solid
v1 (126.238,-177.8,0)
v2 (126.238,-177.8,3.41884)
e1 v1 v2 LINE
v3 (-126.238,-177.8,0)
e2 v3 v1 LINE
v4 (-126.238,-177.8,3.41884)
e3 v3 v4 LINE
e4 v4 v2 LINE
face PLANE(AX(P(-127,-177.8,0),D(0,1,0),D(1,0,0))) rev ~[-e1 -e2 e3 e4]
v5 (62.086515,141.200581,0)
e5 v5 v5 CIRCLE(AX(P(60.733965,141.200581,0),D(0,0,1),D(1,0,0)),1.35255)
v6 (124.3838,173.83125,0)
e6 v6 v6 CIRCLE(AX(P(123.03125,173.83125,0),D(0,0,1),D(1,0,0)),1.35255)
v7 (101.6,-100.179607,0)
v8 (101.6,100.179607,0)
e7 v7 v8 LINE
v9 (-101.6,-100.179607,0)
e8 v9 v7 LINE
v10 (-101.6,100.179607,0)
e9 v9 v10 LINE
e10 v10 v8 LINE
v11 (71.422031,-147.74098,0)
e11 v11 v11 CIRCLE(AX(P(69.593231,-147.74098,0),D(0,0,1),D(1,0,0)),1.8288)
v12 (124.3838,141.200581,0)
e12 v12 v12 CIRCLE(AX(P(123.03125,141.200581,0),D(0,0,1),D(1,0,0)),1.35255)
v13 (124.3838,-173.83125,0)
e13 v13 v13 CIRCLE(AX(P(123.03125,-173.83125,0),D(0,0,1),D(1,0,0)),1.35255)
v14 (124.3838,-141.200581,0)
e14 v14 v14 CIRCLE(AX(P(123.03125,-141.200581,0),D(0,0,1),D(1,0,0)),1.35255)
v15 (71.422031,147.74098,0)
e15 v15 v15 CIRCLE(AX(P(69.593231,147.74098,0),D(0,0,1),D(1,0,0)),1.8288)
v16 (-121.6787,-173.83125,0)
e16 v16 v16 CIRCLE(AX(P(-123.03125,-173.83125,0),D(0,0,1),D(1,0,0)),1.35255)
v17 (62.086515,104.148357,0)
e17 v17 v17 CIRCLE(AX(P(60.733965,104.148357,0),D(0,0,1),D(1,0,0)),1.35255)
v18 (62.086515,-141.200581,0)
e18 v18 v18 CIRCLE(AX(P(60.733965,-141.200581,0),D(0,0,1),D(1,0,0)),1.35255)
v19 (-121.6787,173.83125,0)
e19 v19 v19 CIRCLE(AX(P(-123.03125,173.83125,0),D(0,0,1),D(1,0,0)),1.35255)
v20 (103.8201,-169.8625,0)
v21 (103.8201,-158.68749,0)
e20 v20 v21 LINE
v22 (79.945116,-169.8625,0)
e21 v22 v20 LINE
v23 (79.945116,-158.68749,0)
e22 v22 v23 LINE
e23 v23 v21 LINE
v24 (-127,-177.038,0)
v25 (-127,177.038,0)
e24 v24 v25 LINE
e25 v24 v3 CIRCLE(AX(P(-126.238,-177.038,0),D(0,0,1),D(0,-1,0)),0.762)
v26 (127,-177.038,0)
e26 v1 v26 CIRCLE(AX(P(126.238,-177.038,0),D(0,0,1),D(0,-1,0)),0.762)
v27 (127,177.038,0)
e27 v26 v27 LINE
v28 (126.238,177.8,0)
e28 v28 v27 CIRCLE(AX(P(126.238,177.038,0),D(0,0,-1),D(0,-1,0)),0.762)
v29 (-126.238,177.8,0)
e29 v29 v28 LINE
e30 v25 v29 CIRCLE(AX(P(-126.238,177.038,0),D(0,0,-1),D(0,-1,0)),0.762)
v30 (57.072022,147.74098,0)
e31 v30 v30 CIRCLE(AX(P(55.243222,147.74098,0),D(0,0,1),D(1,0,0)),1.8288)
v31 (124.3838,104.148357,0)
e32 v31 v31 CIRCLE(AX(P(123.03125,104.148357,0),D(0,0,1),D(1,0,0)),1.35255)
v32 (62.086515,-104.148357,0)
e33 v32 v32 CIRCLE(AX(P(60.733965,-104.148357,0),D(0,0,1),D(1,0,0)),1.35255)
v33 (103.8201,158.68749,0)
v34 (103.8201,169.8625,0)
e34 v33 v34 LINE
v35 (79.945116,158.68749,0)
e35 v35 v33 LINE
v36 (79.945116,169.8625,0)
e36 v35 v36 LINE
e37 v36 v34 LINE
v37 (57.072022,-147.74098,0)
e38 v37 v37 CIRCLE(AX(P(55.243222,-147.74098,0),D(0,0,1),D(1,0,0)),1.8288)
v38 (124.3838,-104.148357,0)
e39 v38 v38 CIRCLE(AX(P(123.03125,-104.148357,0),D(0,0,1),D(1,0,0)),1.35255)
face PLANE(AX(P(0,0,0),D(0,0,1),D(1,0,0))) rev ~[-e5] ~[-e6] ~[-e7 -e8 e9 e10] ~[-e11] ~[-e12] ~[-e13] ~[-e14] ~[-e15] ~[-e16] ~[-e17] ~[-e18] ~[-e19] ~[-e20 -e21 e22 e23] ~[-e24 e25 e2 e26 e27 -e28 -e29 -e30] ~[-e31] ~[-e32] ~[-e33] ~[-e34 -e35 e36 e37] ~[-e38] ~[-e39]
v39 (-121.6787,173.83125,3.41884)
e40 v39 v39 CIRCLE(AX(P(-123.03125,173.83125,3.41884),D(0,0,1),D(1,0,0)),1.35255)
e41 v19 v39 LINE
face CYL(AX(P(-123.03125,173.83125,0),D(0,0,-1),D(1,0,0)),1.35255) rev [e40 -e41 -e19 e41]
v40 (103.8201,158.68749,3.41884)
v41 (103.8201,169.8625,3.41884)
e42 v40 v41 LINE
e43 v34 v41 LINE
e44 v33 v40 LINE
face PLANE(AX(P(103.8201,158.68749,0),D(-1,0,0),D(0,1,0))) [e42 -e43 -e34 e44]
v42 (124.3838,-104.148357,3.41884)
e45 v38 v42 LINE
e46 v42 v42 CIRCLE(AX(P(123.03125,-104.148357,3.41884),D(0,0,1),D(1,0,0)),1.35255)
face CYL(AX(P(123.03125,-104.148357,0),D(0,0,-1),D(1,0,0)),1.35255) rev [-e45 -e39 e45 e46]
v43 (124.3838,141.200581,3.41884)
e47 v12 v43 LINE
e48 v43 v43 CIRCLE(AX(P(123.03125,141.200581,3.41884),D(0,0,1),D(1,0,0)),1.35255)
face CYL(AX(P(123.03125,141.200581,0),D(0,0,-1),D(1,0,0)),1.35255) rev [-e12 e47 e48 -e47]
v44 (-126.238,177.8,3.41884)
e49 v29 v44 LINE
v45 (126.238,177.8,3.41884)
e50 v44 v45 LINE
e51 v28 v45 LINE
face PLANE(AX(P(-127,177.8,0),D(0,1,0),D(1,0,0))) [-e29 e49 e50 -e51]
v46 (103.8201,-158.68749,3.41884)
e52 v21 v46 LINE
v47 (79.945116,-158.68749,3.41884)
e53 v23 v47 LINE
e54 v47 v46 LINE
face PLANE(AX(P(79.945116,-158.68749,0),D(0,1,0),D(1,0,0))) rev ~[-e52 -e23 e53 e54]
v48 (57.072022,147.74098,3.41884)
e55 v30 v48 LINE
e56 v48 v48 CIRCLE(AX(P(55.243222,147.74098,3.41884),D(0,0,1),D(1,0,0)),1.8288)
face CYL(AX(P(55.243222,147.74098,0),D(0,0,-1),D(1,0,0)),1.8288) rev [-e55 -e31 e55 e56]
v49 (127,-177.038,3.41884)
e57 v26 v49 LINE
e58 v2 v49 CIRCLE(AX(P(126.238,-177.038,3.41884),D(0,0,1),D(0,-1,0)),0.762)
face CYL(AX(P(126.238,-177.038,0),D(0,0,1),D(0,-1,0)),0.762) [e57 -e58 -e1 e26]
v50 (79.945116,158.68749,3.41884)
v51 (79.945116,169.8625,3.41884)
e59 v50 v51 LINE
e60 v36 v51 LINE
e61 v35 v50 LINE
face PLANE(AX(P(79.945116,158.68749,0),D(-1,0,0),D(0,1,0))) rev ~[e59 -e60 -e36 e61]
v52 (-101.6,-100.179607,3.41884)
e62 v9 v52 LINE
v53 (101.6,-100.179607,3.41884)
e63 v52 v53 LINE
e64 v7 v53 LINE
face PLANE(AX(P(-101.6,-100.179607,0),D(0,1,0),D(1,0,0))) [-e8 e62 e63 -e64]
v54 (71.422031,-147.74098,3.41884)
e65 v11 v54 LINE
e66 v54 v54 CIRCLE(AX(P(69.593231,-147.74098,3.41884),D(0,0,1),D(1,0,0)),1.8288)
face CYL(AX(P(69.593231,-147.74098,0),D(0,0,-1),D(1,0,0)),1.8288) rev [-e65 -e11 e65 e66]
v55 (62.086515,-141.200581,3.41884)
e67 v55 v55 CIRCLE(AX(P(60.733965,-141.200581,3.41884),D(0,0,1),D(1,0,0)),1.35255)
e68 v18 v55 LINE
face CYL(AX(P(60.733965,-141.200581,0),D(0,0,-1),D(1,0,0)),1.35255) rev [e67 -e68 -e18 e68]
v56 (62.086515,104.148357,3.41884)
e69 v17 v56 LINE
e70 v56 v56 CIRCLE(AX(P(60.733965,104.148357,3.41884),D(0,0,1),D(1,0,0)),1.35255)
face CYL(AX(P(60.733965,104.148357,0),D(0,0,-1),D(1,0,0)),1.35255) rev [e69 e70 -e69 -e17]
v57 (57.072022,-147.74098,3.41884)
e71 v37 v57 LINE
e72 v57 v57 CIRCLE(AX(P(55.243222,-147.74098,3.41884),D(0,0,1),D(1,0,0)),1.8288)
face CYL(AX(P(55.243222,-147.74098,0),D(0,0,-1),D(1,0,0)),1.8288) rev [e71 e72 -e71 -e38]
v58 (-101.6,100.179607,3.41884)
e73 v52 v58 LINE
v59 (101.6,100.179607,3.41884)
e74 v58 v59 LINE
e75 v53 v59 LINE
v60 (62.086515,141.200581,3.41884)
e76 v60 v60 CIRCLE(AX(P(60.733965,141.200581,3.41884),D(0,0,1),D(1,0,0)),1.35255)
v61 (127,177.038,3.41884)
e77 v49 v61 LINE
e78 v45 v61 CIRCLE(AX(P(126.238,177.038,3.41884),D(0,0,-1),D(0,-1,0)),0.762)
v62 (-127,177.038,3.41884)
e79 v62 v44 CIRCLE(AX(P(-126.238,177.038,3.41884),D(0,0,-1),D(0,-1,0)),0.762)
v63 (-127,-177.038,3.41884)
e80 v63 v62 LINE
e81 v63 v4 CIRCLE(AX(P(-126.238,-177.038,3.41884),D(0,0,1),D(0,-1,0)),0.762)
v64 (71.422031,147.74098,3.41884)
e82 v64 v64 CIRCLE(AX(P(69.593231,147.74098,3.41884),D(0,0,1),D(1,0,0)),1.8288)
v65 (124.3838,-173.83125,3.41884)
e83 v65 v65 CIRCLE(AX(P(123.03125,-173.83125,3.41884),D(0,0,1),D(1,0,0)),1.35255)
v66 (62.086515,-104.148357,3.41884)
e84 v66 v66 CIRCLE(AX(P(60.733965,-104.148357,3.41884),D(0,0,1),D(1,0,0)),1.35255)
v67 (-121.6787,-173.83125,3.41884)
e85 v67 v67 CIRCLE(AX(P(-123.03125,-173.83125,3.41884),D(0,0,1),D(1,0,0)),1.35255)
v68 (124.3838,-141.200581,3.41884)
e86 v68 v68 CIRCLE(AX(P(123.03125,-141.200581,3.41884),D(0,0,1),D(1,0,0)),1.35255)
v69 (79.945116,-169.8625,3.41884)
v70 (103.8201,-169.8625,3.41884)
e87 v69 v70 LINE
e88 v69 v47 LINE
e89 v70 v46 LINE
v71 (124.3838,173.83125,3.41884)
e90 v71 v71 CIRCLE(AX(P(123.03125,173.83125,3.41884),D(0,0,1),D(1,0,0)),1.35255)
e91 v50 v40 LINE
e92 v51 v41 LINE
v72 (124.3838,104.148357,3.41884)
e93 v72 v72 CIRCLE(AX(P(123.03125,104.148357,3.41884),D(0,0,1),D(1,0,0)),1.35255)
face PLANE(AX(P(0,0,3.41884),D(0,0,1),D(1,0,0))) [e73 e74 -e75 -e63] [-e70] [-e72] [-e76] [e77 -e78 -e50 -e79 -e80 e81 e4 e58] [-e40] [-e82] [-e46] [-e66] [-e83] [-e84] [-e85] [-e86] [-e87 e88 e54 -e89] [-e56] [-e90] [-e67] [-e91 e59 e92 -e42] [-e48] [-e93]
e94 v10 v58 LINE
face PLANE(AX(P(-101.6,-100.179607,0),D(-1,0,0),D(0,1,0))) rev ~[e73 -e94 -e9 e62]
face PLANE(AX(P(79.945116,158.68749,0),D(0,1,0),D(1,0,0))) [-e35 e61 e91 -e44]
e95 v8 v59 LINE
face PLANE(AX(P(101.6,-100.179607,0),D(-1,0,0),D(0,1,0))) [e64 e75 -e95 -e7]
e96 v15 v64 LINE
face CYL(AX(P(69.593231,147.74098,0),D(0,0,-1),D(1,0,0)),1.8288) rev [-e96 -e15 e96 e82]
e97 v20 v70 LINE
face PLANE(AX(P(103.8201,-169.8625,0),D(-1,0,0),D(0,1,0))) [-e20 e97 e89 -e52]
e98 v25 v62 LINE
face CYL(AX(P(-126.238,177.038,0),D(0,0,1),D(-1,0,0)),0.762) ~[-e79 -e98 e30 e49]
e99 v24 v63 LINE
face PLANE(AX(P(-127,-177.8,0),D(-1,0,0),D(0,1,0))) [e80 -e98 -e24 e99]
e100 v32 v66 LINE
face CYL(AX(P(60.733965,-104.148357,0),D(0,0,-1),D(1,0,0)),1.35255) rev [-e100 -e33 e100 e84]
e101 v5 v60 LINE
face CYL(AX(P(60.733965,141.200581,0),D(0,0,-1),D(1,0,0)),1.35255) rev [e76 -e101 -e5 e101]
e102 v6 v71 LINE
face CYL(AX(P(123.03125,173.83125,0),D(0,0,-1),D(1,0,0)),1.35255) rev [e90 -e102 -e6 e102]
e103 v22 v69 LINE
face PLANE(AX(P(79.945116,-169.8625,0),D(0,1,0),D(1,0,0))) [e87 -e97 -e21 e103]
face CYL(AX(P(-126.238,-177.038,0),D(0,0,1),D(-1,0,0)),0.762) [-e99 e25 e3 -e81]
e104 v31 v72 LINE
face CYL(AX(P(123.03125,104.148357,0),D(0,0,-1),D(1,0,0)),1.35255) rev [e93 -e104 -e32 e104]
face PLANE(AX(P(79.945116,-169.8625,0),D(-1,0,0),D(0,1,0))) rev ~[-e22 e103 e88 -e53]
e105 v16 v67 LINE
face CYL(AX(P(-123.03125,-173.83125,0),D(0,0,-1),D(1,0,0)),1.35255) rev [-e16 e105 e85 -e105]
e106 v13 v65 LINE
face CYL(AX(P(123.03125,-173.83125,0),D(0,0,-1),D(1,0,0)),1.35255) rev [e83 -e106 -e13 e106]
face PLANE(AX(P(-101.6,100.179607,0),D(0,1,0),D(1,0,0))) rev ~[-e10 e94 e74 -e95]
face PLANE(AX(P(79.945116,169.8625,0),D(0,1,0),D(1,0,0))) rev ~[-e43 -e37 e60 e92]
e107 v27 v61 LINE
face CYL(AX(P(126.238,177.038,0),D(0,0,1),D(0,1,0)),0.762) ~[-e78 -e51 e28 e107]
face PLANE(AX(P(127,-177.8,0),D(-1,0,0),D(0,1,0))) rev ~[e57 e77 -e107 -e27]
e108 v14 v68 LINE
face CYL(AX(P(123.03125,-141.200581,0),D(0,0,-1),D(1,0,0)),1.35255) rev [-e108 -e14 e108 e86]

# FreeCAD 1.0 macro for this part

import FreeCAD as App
import Part
import Sketcher
Q = App.Units.Quantity


def edges_at(feature, points):
    """Names of the edges that pass closest to the given points."""
    edges = feature.Shape.Edges
    near = lambda p: min(range(len(edges)), key=lambda i: edges[i].distToShape(Part.Vertex(*p))[0])
    return sorted({f"Edge{near(p) + 1}" for p in points})

doc = App.newDocument("Part")
params = doc.addObject("Spreadsheet::Sheet", "Params")
for row, (alias, value) in enumerate([
    ("sketch1_width", "10 in"),
    ("sketch1_width2", "8 in"),
    ("sketch1_height", "14 in"),
    ("sketch1_diameter", "0.144 in"),
    ("pad1_length", "0.1346 in"),
    ("fillet_radius", "0.03 in"),
], start=1):
    params.set(f"A{row}", alias)
    params.set(f"B{row}", "=" + value)
    params.setAlias(f"B{row}", alias)

body = doc.addObject("PartDesign::Body", "Body")

# Sketch on XY plane
sketch1 = body.newObject("Sketcher::SketchObject", "Sketch")
sketch1.AttachmentSupport = (doc.getObject("XY_Plane"), [""])
sketch1.MapMode = "FlatFace"
sketch1.addGeometry([
    Part.LineSegment(App.Vector(-127, 177.8, 0), App.Vector(-127, -177.8, 0)),  # 0
    Part.LineSegment(App.Vector(-127, -177.8, 0), App.Vector(127, -177.8, 0)),  # 1
    Part.LineSegment(App.Vector(127, -177.8, 0), App.Vector(127, 177.8, 0)),  # 2
    Part.LineSegment(App.Vector(127, 177.8, 0), App.Vector(-127, 177.8, 0)),  # 3
    Part.Circle(App.Vector(-123.03125, -173.83125, 0), App.Vector(0, 0, 1), 1.35255),  # 4
    Part.Circle(App.Vector(55.243222, -147.74098, 0), App.Vector(0, 0, 1), 1.8288),  # 5
    Part.Circle(App.Vector(60.733965, -141.200581, 0), App.Vector(0, 0, 1), 1.35255),  # 6
    Part.Circle(App.Vector(60.733965, -104.148357, 0), App.Vector(0, 0, 1), 1.35255),  # 7
    Part.LineSegment(App.Vector(103.8201, -169.8625, 0), App.Vector(79.945116, -169.8625, 0)),  # 8
    Part.LineSegment(App.Vector(79.945116, -169.8625, 0), App.Vector(79.945116, -158.68749, 0)),  # 9
    Part.LineSegment(App.Vector(79.945116, -158.68749, 0), App.Vector(103.8201, -158.68749, 0)),  # 10
    Part.LineSegment(App.Vector(103.8201, -158.68749, 0), App.Vector(103.8201, -169.8625, 0)),  # 11
    Part.Circle(App.Vector(69.593231, -147.74098, 0), App.Vector(0, 0, 1), 1.8288),  # 12
    Part.Circle(App.Vector(123.03125, -173.83125, 0), App.Vector(0, 0, 1), 1.35255),  # 13
    Part.Circle(App.Vector(123.03125, -141.200581, 0), App.Vector(0, 0, 1), 1.35255),  # 14
    Part.Circle(App.Vector(123.03125, -104.148357, 0), App.Vector(0, 0, 1), 1.35255),  # 15
    Part.Circle(App.Vector(-123.03125, 173.83125, 0), App.Vector(0, 0, 1), 1.35255),  # 16
    Part.LineSegment(App.Vector(101.6, -100.179607, 0), App.Vector(-101.6, -100.179607, 0)),  # 17
    Part.LineSegment(App.Vector(-101.6, -100.179607, 0), App.Vector(-101.6, 100.179607, 0)),  # 18
    Part.LineSegment(App.Vector(-101.6, 100.179607, 0), App.Vector(101.6, 100.179607, 0)),  # 19
    Part.LineSegment(App.Vector(101.6, 100.179607, 0), App.Vector(101.6, -100.179607, 0)),  # 20
    Part.Circle(App.Vector(60.733965, 104.148357, 0), App.Vector(0, 0, 1), 1.35255),  # 21
    Part.Circle(App.Vector(60.733965, 141.200581, 0), App.Vector(0, 0, 1), 1.35255),  # 22
    Part.Circle(App.Vector(55.243222, 147.74098, 0), App.Vector(0, 0, 1), 1.8288),  # 23
    Part.Circle(App.Vector(123.03125, 104.148357, 0), App.Vector(0, 0, 1), 1.35255),  # 24
    Part.Circle(App.Vector(69.593231, 147.74098, 0), App.Vector(0, 0, 1), 1.8288),  # 25
    Part.LineSegment(App.Vector(103.8201, 158.68749, 0), App.Vector(79.945116, 158.68749, 0)),  # 26
    Part.LineSegment(App.Vector(79.945116, 158.68749, 0), App.Vector(79.945116, 169.8625, 0)),  # 27
    Part.LineSegment(App.Vector(79.945116, 169.8625, 0), App.Vector(103.8201, 169.8625, 0)),  # 28
    Part.LineSegment(App.Vector(103.8201, 169.8625, 0), App.Vector(103.8201, 158.68749, 0)),  # 29
    Part.Circle(App.Vector(123.03125, 141.200581, 0), App.Vector(0, 0, 1), 1.35255),  # 30
    Part.Circle(App.Vector(123.03125, 173.83125, 0), App.Vector(0, 0, 1), 1.35255),  # 31
], False)
sketch1.addConstraint([
    Sketcher.Constraint("Coincident", 0, 2, 1, 1),
    Sketcher.Constraint("Coincident", 1, 2, 2, 1),
    Sketcher.Constraint("Coincident", 2, 2, 3, 1),
    Sketcher.Constraint("Coincident", 3, 2, 0, 1),
    Sketcher.Constraint("Coincident", 8, 2, 9, 1),
    Sketcher.Constraint("Coincident", 9, 2, 10, 1),
    Sketcher.Constraint("Coincident", 10, 2, 11, 1),
    Sketcher.Constraint("Coincident", 11, 2, 8, 1),
    Sketcher.Constraint("Coincident", 17, 2, 18, 1),
    Sketcher.Constraint("Coincident", 18, 2, 19, 1),
    Sketcher.Constraint("Coincident", 19, 2, 20, 1),
    Sketcher.Constraint("Coincident", 20, 2, 17, 1),
    Sketcher.Constraint("Coincident", 26, 2, 27, 1),
    Sketcher.Constraint("Coincident", 27, 2, 28, 1),
    Sketcher.Constraint("Coincident", 28, 2, 29, 1),
    Sketcher.Constraint("Coincident", 29, 2, 26, 1),
    Sketcher.Constraint("Vertical", 0),
    Sketcher.Constraint("Horizontal", 1),
    Sketcher.Constraint("Vertical", 2),
    Sketcher.Constraint("Horizontal", 3),
    Sketcher.Constraint("Horizontal", 8),
    Sketcher.Constraint("Vertical", 9),
    Sketcher.Constraint("Horizontal", 10),
    Sketcher.Constraint("Vertical", 11),
    Sketcher.Constraint("Horizontal", 17),
    Sketcher.Constraint("Vertical", 18),
    Sketcher.Constraint("Horizontal", 19),
    Sketcher.Constraint("Vertical", 20),
    Sketcher.Constraint("Horizontal", 26),
    Sketcher.Constraint("Vertical", 27),
    Sketcher.Constraint("Horizontal", 28),
    Sketcher.Constraint("Vertical", 29),
    Sketcher.Constraint("Equal", 4, 6),
    Sketcher.Constraint("Equal", 6, 7),
    Sketcher.Constraint("Equal", 5, 12),
    Sketcher.Constraint("Equal", 7, 13),
    Sketcher.Constraint("Equal", 13, 14),
    Sketcher.Constraint("Equal", 14, 15),
    Sketcher.Constraint("Equal", 15, 16),
    Sketcher.Constraint("Equal", 16, 21),
    Sketcher.Constraint("Equal", 21, 22),
    Sketcher.Constraint("Equal", 12, 23),
    Sketcher.Constraint("Equal", 22, 24),
    Sketcher.Constraint("Equal", 23, 25),
    Sketcher.Constraint("Equal", 24, 30),
    Sketcher.Constraint("Equal", 30, 31),
    Sketcher.Constraint("Symmetric", 13, 3, 16, 3, -1, 1),
    Sketcher.Constraint("Symmetric", 4, 3, 31, 3, -1, 1),
    Sketcher.Constraint("Symmetric", 0, 2, 2, 2, -1, 1),
    Sketcher.Constraint("Symmetric", 17, 2, 19, 2, -1, 1),
    Sketcher.Constraint("Symmetric", 4, 3, 13, 3, -2),
    Sketcher.Constraint("Symmetric", 7, 3, 21, 3, -1),
    Sketcher.Constraint("Symmetric", 6, 3, 22, 3, -1),
    Sketcher.Constraint("Symmetric", 5, 3, 23, 3, -1),
    Sketcher.Constraint("Symmetric", 15, 3, 24, 3, -1),
    Sketcher.Constraint("Symmetric", 12, 3, 25, 3, -1),
    Sketcher.Constraint("Symmetric", 14, 3, 30, 3, -1),
    Sketcher.Constraint("Symmetric", 9, 2, 26, 2, -1),
    Sketcher.Constraint("Symmetric", 11, 2, 28, 2, -1),
    Sketcher.Constraint("Horizontal", 5, 3, 12, 3),
    Sketcher.Constraint("Horizontal", 6, 3, 14, 3),
    Sketcher.Constraint("Horizontal", 7, 3, 15, 3),
    Sketcher.Constraint("Vertical", 6, 3, 7, 3),
    Sketcher.Constraint("Vertical", 13, 3, 14, 3),
    Sketcher.Constraint("Vertical", 14, 3, 15, 3),
    Sketcher.Constraint("DistanceX", 1, 1, 1, 2, Q("10 in")),
    Sketcher.Constraint("DistanceX", 17, 2, 17, 1, Q("8 in")),
    Sketcher.Constraint("DistanceY", 0, 2, 0, 1, Q("14 in")),
    Sketcher.Constraint("Diameter", 5, Q("0.144 in")),
    Sketcher.Constraint("Diameter", 4, Q("0.1065 in")),
    Sketcher.Constraint("DistanceX", 4, 3, -1, 1, Q("4.84375 in")),
    Sketcher.Constraint("DistanceY", 4, 3, -1, 1, Q("6.84375 in")),
    Sketcher.Constraint("DistanceY", 8, 2, -1, 1, Q("6.6875 in")),
    Sketcher.Constraint("DistanceY", 7, 3, 17, 2, Q("0.15625 in")),
    Sketcher.Constraint("DistanceY", 9, 1, 9, 2, Q("11.175009 mm")),
    Sketcher.Constraint("DistanceX", -1, 1, 10, 2, Q("103.8201 mm")),
    Sketcher.Constraint("DistanceY", 5, 3, 6, 3, Q("6.540399 mm")),
    Sketcher.Constraint("DistanceX", 8, 2, 8, 1, Q("23.874984 mm")),
    Sketcher.Constraint("DistanceY", 18, 1, 18, 2, Q("200.359214 mm")),
    Sketcher.Constraint("DistanceY", 5, 3, -1, 1, Q("147.74098 mm")),
    Sketcher.Constraint("DistanceX", -1, 1, 12, 3, Q("69.593231 mm")),
    Sketcher.Constraint("DistanceX", 4, 3, 5, 3, Q("178.274472 mm")),
    Sketcher.Constraint("DistanceX", 6, 3, 8, 2, Q("19.211151 mm")),
])
sketch1.setExpression("Constraints[65]", "Params.sketch1_width")
sketch1.setExpression("Constraints[66]", "Params.sketch1_width2")
sketch1.setExpression("Constraints[67]", "Params.sketch1_height")
sketch1.setExpression("Constraints[68]", "Params.sketch1_diameter")
pad1 = body.newObject("PartDesign::Pad", "Pad")
pad1.Profile = sketch1
pad1.setExpression("Length", "Params.pad1_length")
doc.recompute()

fillet = body.newObject("PartDesign::Fillet", "Fillet")
fillet.Base = (pad1, edges_at(pad1, [
    (-127, -177.8, 1.709),
    (127, -177.8, 1.709),
    (127, 177.8, 1.709),
    (-127, 177.8, 1.709),
]))
fillet.setExpression("Radius", "Params.fillet_radius")

doc.recompute()
